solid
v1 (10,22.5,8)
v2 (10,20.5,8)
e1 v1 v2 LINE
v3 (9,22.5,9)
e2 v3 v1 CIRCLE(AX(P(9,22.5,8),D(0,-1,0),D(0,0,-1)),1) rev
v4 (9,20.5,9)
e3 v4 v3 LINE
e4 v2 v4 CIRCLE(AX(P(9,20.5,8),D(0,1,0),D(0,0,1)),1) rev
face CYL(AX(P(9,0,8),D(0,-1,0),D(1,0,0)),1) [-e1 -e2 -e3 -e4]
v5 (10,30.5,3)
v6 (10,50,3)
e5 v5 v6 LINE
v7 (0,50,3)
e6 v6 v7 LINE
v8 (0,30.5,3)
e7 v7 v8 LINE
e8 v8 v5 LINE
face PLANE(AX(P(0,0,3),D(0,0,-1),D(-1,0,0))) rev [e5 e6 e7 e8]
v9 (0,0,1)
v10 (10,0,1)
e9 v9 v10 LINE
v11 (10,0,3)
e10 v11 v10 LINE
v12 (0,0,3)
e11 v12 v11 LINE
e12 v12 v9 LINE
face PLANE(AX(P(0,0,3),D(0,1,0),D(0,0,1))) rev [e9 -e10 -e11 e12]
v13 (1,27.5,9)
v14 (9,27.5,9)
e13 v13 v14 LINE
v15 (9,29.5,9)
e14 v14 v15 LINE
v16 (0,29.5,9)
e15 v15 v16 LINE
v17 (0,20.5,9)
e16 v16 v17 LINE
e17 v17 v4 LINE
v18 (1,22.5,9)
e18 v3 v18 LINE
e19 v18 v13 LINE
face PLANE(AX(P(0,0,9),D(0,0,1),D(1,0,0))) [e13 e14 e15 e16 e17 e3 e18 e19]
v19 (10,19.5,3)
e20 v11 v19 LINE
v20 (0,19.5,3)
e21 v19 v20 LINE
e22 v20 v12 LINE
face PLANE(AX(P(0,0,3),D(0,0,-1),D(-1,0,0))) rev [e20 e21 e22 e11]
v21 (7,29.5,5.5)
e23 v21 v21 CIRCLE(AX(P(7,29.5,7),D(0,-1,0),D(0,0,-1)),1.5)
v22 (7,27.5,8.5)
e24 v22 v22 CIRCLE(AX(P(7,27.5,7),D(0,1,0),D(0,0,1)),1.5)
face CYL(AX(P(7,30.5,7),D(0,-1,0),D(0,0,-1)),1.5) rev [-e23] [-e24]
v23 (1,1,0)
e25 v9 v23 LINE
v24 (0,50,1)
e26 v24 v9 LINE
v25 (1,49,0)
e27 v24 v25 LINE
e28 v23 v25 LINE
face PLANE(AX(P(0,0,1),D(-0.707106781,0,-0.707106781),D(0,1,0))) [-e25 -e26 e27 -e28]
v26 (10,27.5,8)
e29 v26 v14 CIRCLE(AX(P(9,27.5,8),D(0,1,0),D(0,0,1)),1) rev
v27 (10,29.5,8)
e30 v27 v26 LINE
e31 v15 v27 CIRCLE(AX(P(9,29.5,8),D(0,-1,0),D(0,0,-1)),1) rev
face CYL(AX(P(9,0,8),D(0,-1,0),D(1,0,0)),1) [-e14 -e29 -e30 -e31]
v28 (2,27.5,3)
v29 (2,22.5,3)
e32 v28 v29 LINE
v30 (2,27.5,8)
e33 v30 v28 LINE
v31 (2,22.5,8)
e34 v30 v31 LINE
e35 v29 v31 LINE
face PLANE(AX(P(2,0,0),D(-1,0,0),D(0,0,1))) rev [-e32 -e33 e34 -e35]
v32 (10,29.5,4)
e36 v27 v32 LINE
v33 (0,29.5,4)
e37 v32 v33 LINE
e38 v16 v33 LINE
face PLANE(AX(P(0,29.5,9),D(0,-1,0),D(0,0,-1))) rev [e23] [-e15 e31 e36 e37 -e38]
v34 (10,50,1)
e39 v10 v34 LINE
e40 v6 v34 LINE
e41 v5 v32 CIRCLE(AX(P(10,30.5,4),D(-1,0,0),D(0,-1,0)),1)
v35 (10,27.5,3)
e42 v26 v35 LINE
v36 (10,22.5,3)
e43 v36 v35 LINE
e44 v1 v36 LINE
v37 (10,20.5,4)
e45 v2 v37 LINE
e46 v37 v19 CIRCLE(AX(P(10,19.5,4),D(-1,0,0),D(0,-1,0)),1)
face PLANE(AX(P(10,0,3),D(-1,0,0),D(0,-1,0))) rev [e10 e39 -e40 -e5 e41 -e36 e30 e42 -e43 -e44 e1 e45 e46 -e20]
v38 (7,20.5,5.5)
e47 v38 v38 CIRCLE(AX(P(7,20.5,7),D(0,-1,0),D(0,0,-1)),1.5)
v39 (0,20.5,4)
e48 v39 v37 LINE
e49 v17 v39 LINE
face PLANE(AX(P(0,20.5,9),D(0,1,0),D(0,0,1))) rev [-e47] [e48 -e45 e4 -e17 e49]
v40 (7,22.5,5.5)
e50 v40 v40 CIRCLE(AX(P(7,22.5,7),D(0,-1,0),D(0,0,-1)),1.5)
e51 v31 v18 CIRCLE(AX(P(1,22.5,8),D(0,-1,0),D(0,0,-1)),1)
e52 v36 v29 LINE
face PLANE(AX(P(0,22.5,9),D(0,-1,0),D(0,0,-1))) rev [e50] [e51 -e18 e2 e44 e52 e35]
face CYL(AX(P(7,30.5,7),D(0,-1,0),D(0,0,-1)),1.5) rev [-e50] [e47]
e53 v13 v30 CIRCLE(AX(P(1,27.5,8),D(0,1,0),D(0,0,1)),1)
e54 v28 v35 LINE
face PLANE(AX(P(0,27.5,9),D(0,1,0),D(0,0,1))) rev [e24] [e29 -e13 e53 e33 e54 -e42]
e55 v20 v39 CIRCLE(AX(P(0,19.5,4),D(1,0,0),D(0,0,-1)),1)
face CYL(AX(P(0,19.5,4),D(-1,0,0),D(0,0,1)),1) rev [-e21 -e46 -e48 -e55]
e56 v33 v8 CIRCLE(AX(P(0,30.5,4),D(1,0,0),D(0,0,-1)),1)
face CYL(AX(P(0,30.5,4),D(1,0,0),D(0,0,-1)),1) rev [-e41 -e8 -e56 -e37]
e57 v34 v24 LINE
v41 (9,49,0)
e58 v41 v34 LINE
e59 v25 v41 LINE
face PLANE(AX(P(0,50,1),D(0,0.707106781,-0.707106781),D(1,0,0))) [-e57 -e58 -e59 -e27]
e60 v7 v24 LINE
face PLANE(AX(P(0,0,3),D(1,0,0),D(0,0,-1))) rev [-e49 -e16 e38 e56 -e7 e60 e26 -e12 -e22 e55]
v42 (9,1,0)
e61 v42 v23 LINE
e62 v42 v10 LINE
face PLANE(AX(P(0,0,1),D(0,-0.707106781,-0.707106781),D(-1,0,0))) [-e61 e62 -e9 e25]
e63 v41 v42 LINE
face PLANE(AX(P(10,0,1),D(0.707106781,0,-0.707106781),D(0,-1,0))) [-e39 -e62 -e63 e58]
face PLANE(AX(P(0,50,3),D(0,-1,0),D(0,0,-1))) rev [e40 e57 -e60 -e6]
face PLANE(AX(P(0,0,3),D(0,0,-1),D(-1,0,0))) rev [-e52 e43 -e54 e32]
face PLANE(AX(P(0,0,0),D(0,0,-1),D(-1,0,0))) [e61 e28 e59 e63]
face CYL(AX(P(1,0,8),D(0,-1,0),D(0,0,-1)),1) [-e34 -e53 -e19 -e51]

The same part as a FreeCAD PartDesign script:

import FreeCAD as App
import Part
import Sketcher
from FreeCAD import Vector


def edges_at(feature, points):
    """Names of the edges that pass closest to the given points."""
    edges = feature.Shape.Edges
    near = lambda p: min(range(len(edges)), key=lambda i: edges[i].distToShape(Part.Vertex(*p))[0])
    return sorted({f"Edge{near(p) + 1}" for p in points})

doc = App.newDocument("Part")
params = doc.addObject("Spreadsheet::Sheet", "Params")
for row, (alias, value) in enumerate([
    ("sketch1_width", "10 mm"),
    ("sketch1_height", "50 mm"),
    ("pad1_length", "3 mm"),
    ("chamfer_size", "1 mm"),
    ("sketch2_width", "10 mm"),
    ("sketch2_height", "2 mm"),
    ("pad2_length", "6 mm"),
    ("sketch3_diameter", "3 mm"),
    ("pocket1_length", "10 mm"),
    ("fillet_radius", "1 mm"),
    ("fillet2_radius", "1 mm"),
    ("sketch4_width", "5 mm"),
    ("sketch4_height", "6 mm"),
    ("pad3_length", "2 mm"),
    ("fillet3_radius", "1 mm"),
], start=1):
    params.set(f"A{row}", alias)
    params.set(f"B{row}", "=" + value)
    params.setAlias(f"B{row}", alias)

body = doc.addObject("PartDesign::Body", "Body")

sketch1 = body.newObject("Sketcher::SketchObject", "Sketch")
sketch1.AttachmentSupport = (doc.getObject("XY_Plane"), [""])
sketch1.MapMode = "FlatFace"
sketch1.addGeometry([
    Part.LineSegment(Vector(0, 50, 0), Vector(0, 0, 0)),
    Part.LineSegment(Vector(0, 0, 0), Vector(10, 0, 0)),
    Part.LineSegment(Vector(10, 0, 0), Vector(10, 50, 0)),
    Part.LineSegment(Vector(10, 50, 0), Vector(0, 50, 0)),
], False)
sketch1.addConstraint([
    Sketcher.Constraint("Coincident", 0, 2, 1, 1),
    Sketcher.Constraint("Coincident", 1, 2, 2, 1),
    Sketcher.Constraint("Coincident", 2, 2, 3, 1),
    Sketcher.Constraint("Coincident", 3, 2, 0, 1),
    Sketcher.Constraint("Vertical", 0),
    Sketcher.Constraint("Horizontal", 1),
    Sketcher.Constraint("Vertical", 2),
    Sketcher.Constraint("Horizontal", 3),
    Sketcher.Constraint("Coincident", 0, 2, -1, 1),
    Sketcher.Constraint("DistanceX", 1, 1, 1, 2, 10.0),
    Sketcher.Constraint("DistanceY", 0, 2, 0, 1, 50.0),
])
sketch1.setExpression("Constraints[9]", "Params.sketch1_width")
sketch1.setExpression("Constraints[10]", "Params.sketch1_height")
pad1 = body.newObject("PartDesign::Pad", "Pad")
pad1.Profile = sketch1
pad1.setExpression("Length", "Params.pad1_length")
doc.recompute()

chamfer = body.newObject("PartDesign::Chamfer", "Chamfer")
chamfer.Base = (pad1, edges_at(pad1, [
    (5, 50, 0),
    (10, 25, 0),
    (5, 0, 0),
    (0, 25, 0),
]))
chamfer.setExpression("Size", "Params.chamfer_size")

sketch2 = body.newObject("Sketcher::SketchObject", "Sketch001")
sketch2.AttachmentSupport = (doc.getObject("XY_Plane"), [""])
sketch2.MapMode = "FlatFace"
sketch2.AttachmentOffset = App.Placement(Vector(0, 0, 3), App.Rotation())
sketch2.addGeometry([
    Part.LineSegment(Vector(0, 29.5, 0), Vector(0, 27.5, 0)),
    Part.LineSegment(Vector(0, 27.5, 0), Vector(10, 27.5, 0)),
    Part.LineSegment(Vector(10, 27.5, 0), Vector(10, 29.5, 0)),
    Part.LineSegment(Vector(10, 29.5, 0), Vector(0, 29.5, 0)),
    Part.LineSegment(Vector(0, 22.5, 0), Vector(0, 20.5, 0)),
    Part.LineSegment(Vector(0, 20.5, 0), Vector(10, 20.5, 0)),
    Part.LineSegment(Vector(10, 20.5, 0), Vector(10, 22.5, 0)),
    Part.LineSegment(Vector(10, 22.5, 0), Vector(0, 22.5, 0)),
], False)
sketch2.addConstraint([
    Sketcher.Constraint("Coincident", 0, 2, 1, 1),
    Sketcher.Constraint("Coincident", 1, 2, 2, 1),
    Sketcher.Constraint("Coincident", 2, 2, 3, 1),
    Sketcher.Constraint("Coincident", 3, 2, 0, 1),
    Sketcher.Constraint("Coincident", 4, 2, 5, 1),
    Sketcher.Constraint("Coincident", 5, 2, 6, 1),
    Sketcher.Constraint("Coincident", 6, 2, 7, 1),
    Sketcher.Constraint("Coincident", 7, 2, 4, 1),
    Sketcher.Constraint("Vertical", 0),
    Sketcher.Constraint("Horizontal", 1),
    Sketcher.Constraint("Vertical", 2),
    Sketcher.Constraint("Horizontal", 3),
    Sketcher.Constraint("Vertical", 4),
    Sketcher.Constraint("Horizontal", 5),
    Sketcher.Constraint("Vertical", 6),
    Sketcher.Constraint("Horizontal", 7),
    Sketcher.Constraint("PointOnObject", 0, 2, -2),
    Sketcher.Constraint("PointOnObject", 4, 2, -2),
    Sketcher.Constraint("Vertical", 2, 2, 5, 2),
    Sketcher.Constraint("Equal", 2, 4),
    Sketcher.Constraint("DistanceX", 1, 1, 1, 2, 10.0),
    Sketcher.Constraint("DistanceY", 0, 2, 0, 1, 2.0),
    Sketcher.Constraint("DistanceY", 4, 2, 0, 2, 7.0),
    Sketcher.Constraint("DistanceY", -1, 1, 0, 2, 27.5),
])
sketch2.setExpression("Constraints[20]", "Params.sketch2_width")
sketch2.setExpression("Constraints[21]", "Params.sketch2_height")
pad2 = body.newObject("PartDesign::Pad", "Pad001")
pad2.Profile = sketch2
pad2.setExpression("Length", "Params.pad2_length")

sketch3 = body.newObject("Sketcher::SketchObject", "Sketch002")
sketch3.AttachmentSupport = (doc.getObject("XZ_Plane"), [""])
sketch3.MapMode = "FlatFace"
sketch3.AttachmentOffset = App.Placement(Vector(0, 0, -20.5), App.Rotation())
sketch3.addGeometry(Part.Circle(Vector(7, 7, 0), Vector(0, 0, 1), 1.5), False)
sketch3.addConstraint([
    Sketcher.Constraint("Diameter", 0, 3.0),
    Sketcher.Constraint("DistanceX", -1, 1, 0, 3, 7.0),
    Sketcher.Constraint("DistanceY", -1, 1, 0, 3, 7.0),
])
sketch3.setExpression("Constraints[0]", "Params.sketch3_diameter")
pocket1 = body.newObject("PartDesign::Pocket", "Pocket")
pocket1.Profile = sketch3
pocket1.setExpression("Length", "Params.pocket1_length")
doc.recompute()

fillet = body.newObject("PartDesign::Fillet", "Fillet")
fillet.Base = (pocket1, edges_at(pocket1, [(10, 28.5, 9), (10, 21.5, 9)]))
fillet.setExpression("Radius", "Params.fillet_radius")
doc.recompute()

fillet2 = body.newObject("PartDesign::Fillet", "Fillet001")
fillet2.Base = (fillet, edges_at(fillet, [(5, 29.5, 3), (5, 20.5, 3)]))
fillet2.setExpression("Radius", "Params.fillet2_radius")

sketch4 = body.newObject("Sketcher::SketchObject", "Sketch003")
sketch4.AttachmentSupport = (doc.getObject("YZ_Plane"), [""])
sketch4.MapMode = "FlatFace"
sketch4.addGeometry([
    Part.LineSegment(Vector(27.5, 3, 0), Vector(22.5, 3, 0)),
    Part.LineSegment(Vector(22.5, 3, 0), Vector(22.5, 9, 0)),
    Part.LineSegment(Vector(22.5, 9, 0), Vector(27.5, 9, 0)),
    Part.LineSegment(Vector(27.5, 9, 0), Vector(27.5, 3, 0)),
], False)
sketch4.addConstraint([
    Sketcher.Constraint("Coincident", 0, 2, 1, 1),
    Sketcher.Constraint("Coincident", 1, 2, 2, 1),
    Sketcher.Constraint("Coincident", 2, 2, 3, 1),
    Sketcher.Constraint("Coincident", 3, 2, 0, 1),
    Sketcher.Constraint("Horizontal", 0),
    Sketcher.Constraint("Vertical", 1),
    Sketcher.Constraint("Horizontal", 2),
    Sketcher.Constraint("Vertical", 3),
    Sketcher.Constraint("DistanceX", 0, 2, 0, 1, 5.0),
    Sketcher.Constraint("DistanceY", 1, 1, 1, 2, 6.0),
    Sketcher.Constraint("DistanceY", -1, 1, 0, 2, 3.0),
    Sketcher.Constraint("DistanceX", -1, 1, 0, 2, 22.5),
])
sketch4.setExpression("Constraints[8]", "Params.sketch4_width")
sketch4.setExpression("Constraints[9]", "Params.sketch4_height")
pad3 = body.newObject("PartDesign::Pad", "Pad002")
pad3.Profile = sketch4
pad3.setExpression("Length", "Params.pad3_length")
doc.recompute()

fillet3 = body.newObject("PartDesign::Fillet", "Fillet002")
fillet3.Base = (pad3, edges_at(pad3, [(2, 25, 9)]))
fillet3.setExpression("Radius", "Params.fillet3_radius")

doc.recompute()
